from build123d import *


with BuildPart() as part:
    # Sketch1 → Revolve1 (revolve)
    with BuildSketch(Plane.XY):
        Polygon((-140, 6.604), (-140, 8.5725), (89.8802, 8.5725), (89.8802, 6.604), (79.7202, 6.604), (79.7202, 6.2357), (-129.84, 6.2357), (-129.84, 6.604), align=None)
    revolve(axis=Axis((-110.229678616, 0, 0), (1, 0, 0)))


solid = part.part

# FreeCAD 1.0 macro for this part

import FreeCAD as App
import Part
import Sketcher
Q = App.Units.Quantity

doc = App.newDocument("Part")
params = doc.addObject("Spreadsheet::Sheet", "Params")
for row, (alias, value) in enumerate([
    ("sketch1_width", "0.4 in"),
    ("revolution_angle", "360 deg"),
], start=1):
    params.set(f"A{row}", alias)
    params.set(f"B{row}", "=" + value)
    params.setAlias(f"B{row}", alias)

body = doc.addObject("PartDesign::Body", "Body")

# Sketch on XY plane
sketch1 = doc.addObject("Sketcher::SketchObject", "Sketch")
body.addObject(sketch1)
sketch1.AttachmentSupport = (doc.XY_Plane, [""])
sketch1.MapMode = "FlatFace"
sketch1.addGeometry([
    Part.LineSegment(App.Vector(-140, 8.57, 0), App.Vector(-140, 6.6, 0)),  # 0
    Part.LineSegment(App.Vector(-140, 6.6, 0), App.Vector(-129.84, 6.6, 0)),  # 1
    Part.LineSegment(App.Vector(-129.84, 6.6, 0), App.Vector(-129.84, 6.24, 0)),  # 2
    Part.LineSegment(App.Vector(-129.84, 6.24, 0), App.Vector(79.72, 6.24, 0)),  # 3
    Part.LineSegment(App.Vector(79.72, 6.24, 0), App.Vector(79.72, 6.6, 0)),  # 4
    Part.LineSegment(App.Vector(79.72, 6.6, 0), App.Vector(89.88, 6.6, 0)),  # 5
    Part.LineSegment(App.Vector(89.88, 6.6, 0), App.Vector(89.88, 8.57, 0)),  # 6
    Part.LineSegment(App.Vector(89.88, 8.57, 0), App.Vector(-140, 8.57, 0)),  # 7
], False)
sketch1.addConstraint([
    Sketcher.Constraint("Coincident", 0, 2, 1, 1),
    Sketcher.Constraint("Coincident", 1, 2, 2, 1),
    Sketcher.Constraint("Coincident", 2, 2, 3, 1),
    Sketcher.Constraint("Coincident", 3, 2, 4, 1),
    Sketcher.Constraint("Coincident", 4, 2, 5, 1),
    Sketcher.Constraint("Coincident", 5, 2, 6, 1),
    Sketcher.Constraint("Coincident", 6, 2, 7, 1),
    Sketcher.Constraint("Coincident", 7, 2, 0, 1),
    Sketcher.Constraint("Vertical", 0),
    Sketcher.Constraint("Horizontal", 1),
    Sketcher.Constraint("Vertical", 2),
    Sketcher.Constraint("Horizontal", 3),
    Sketcher.Constraint("Vertical", 4),
    Sketcher.Constraint("Horizontal", 5),
    Sketcher.Constraint("Vertical", 6),
    Sketcher.Constraint("Horizontal", 7),
    Sketcher.Constraint("Horizontal", 1, 2, 4, 2),
    Sketcher.Constraint("Equal", 1, 5),
    Sketcher.Constraint("DistanceX", 1, 1, 1, 2, Q("0.4 in")),
    Sketcher.Constraint("DistanceY", -1, 1, 0, 2, Q("0.26 in")),
    Sketcher.Constraint("DistanceY", 0, 2, 0, 1, Q("0.0775 in")),
    Sketcher.Constraint("DistanceY", 2, 2, 2, 1, Q("0.0145 in")),
    Sketcher.Constraint("DistanceX", 3, 1, 3, 2, 209.5602),
    Sketcher.Constraint("DistanceX", 0, 2, -1, 1, 140.0),
])
sketch1.setExpression("Constraints[18]", "Params.sketch1_width")
revolution = doc.addObject("PartDesign::Revolution", "Revolution")
body.addObject(revolution)
revolution.Profile = sketch1
revolution.ReferenceAxis = (sketch1, ["H_Axis"])
revolution.setExpression("Angle", "Params.revolution_angle")

doc.recompute()
